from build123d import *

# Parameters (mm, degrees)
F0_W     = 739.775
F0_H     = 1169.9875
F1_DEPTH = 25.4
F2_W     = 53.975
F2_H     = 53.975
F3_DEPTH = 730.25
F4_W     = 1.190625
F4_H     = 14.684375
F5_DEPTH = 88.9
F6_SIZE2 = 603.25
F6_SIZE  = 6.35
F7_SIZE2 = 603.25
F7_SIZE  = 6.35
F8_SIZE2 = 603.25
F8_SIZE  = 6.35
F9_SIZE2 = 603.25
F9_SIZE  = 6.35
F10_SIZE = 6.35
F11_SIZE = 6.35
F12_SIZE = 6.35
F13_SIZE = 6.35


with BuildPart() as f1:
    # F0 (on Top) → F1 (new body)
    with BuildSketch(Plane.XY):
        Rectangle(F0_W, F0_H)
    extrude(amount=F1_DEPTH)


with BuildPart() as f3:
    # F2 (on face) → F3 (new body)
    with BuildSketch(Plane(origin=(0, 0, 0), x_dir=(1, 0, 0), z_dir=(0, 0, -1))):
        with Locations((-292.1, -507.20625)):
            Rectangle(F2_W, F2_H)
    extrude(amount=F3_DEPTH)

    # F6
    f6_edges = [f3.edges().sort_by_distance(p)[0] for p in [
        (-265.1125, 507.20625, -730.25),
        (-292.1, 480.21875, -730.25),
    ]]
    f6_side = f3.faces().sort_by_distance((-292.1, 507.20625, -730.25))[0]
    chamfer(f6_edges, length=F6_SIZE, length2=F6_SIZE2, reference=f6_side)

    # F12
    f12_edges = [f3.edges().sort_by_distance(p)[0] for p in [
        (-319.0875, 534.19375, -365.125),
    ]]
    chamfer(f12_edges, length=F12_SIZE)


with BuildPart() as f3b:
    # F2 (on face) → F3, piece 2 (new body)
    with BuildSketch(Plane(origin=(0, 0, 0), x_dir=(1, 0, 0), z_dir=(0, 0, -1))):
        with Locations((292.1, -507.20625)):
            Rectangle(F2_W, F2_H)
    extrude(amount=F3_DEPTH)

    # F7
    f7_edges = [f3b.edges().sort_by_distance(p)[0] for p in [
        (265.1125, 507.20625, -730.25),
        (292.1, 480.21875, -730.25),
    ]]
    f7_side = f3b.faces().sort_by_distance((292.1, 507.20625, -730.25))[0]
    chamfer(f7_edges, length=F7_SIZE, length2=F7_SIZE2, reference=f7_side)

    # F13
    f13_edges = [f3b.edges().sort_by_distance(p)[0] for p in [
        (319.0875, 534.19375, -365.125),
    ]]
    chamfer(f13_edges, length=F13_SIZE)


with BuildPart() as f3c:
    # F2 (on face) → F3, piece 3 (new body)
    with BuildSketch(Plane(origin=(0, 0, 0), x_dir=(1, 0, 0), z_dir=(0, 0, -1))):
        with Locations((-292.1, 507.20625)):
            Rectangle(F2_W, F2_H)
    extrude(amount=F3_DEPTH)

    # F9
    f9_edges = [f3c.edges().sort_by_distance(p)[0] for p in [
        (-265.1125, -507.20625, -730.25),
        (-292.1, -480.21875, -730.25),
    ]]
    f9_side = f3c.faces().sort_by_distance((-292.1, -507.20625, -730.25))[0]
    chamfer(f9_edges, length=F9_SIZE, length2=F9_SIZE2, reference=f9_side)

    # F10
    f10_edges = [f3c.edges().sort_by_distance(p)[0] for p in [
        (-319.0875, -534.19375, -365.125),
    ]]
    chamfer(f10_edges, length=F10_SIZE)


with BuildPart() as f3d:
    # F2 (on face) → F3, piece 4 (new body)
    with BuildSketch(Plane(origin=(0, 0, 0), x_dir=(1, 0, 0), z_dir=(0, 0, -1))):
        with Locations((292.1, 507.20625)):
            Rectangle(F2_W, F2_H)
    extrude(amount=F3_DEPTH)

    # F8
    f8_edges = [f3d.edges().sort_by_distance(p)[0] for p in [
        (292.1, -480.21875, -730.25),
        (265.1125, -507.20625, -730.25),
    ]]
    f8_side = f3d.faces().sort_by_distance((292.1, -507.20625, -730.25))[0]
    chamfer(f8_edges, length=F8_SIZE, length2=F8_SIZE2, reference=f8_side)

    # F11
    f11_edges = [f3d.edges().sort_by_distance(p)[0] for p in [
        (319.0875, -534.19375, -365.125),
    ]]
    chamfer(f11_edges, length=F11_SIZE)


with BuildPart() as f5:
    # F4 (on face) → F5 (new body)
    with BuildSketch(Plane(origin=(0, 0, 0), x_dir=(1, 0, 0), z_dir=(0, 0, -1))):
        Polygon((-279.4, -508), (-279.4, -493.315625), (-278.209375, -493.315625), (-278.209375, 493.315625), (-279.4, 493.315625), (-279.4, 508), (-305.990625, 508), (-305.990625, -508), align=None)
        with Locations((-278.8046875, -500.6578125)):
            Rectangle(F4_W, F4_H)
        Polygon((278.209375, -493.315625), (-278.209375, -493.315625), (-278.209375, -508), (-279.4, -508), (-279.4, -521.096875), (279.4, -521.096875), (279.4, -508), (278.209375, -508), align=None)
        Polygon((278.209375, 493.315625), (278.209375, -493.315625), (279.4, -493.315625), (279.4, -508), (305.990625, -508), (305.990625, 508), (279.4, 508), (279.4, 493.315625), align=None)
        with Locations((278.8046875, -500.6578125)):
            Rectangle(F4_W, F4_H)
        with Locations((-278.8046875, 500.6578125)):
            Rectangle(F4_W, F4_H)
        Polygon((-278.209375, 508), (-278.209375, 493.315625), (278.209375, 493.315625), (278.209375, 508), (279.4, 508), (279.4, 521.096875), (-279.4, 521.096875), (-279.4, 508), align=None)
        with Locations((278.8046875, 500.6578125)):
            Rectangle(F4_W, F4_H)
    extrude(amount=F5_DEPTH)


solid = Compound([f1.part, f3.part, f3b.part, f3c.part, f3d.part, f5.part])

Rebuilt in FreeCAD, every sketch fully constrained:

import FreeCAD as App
import Part
import Sketcher
from FreeCAD import Vector
Q = App.Units.Quantity


def edges_at(feature, points):
    """Names of the edges that pass closest to the given points."""
    edges = feature.Shape.Edges
    near = lambda p: min(range(len(edges)), key=lambda i: edges[i].distToShape(Part.Vertex(*p))[0])
    return sorted({f"Edge{near(p) + 1}" for p in points})

doc = App.newDocument("Part")
body = doc.addObject("PartDesign::Body", "Body")

# Sketch on XY plane
sketch1 = doc.addObject("Sketcher::SketchObject", "Sketch")
body.addObject(sketch1)
sketch1.AttachmentSupport = (doc.XY_Plane, [""])
sketch1.MapMode = "FlatFace"
sketch1.addGeometry(Part.LineSegment(Vector(-370, 585, 0), Vector(-370, -585, 0)), False)
sketch1.addGeometry(Part.LineSegment(Vector(-370, -585, 0), Vector(370, -585, 0)), False)
sketch1.addGeometry(Part.LineSegment(Vector(370, -585, 0), Vector(370, 585, 0)), False)
sketch1.addGeometry(Part.LineSegment(Vector(370, 585, 0), Vector(-370, 585, 0)), False)
sketch1.addConstraint(Sketcher.Constraint("Coincident", 0, 2, 1, 1))
sketch1.addConstraint(Sketcher.Constraint("Coincident", 1, 2, 2, 1))
sketch1.addConstraint(Sketcher.Constraint("Coincident", 2, 2, 3, 1))
sketch1.addConstraint(Sketcher.Constraint("Coincident", 3, 2, 0, 1))
sketch1.addConstraint(Sketcher.Constraint("Vertical", 0))
sketch1.addConstraint(Sketcher.Constraint("Horizontal", 1))
sketch1.addConstraint(Sketcher.Constraint("Vertical", 2))
sketch1.addConstraint(Sketcher.Constraint("Horizontal", 3))
sketch1.addConstraint(Sketcher.Constraint("Symmetric", 0, 2, 2, 2, -1, 1))
sketch1.addConstraint(Sketcher.Constraint("DistanceX", 1, 1, 1, 2, Q("29.125 in")))
sketch1.addConstraint(Sketcher.Constraint("DistanceY", 0, 2, 0, 1, Q("46.0625 in")))
pad1 = doc.addObject("PartDesign::Pad", "Pad")
body.addObject(pad1)
pad1.Profile = sketch1
pad1.Length = Q("1 in")
body2 = doc.addObject("PartDesign::Body", "Body001")

# Sketch on XY plane
sketch2 = doc.addObject("Sketcher::SketchObject", "Sketch001")
body2.addObject(sketch2)
sketch2.AttachmentSupport = (doc.getObject("XY_Plane001"), [""])
sketch2.MapMode = "FlatFace"
sketch2.addGeometry(Part.LineSegment(Vector(-319, 480, 0), Vector(-319, 534, 0)), False)
sketch2.addGeometry(Part.LineSegment(Vector(-319, 534, 0), Vector(-265, 534, 0)), False)
sketch2.addGeometry(Part.LineSegment(Vector(-265, 534, 0), Vector(-265, 480, 0)), False)
sketch2.addGeometry(Part.LineSegment(Vector(-265, 480, 0), Vector(-319, 480, 0)), False)
sketch2.addConstraint(Sketcher.Constraint("Coincident", 0, 2, 1, 1))
sketch2.addConstraint(Sketcher.Constraint("Coincident", 1, 2, 2, 1))
sketch2.addConstraint(Sketcher.Constraint("Coincident", 2, 2, 3, 1))
sketch2.addConstraint(Sketcher.Constraint("Coincident", 3, 2, 0, 1))
sketch2.addConstraint(Sketcher.Constraint("Vertical", 0))
sketch2.addConstraint(Sketcher.Constraint("Horizontal", 1))
sketch2.addConstraint(Sketcher.Constraint("Vertical", 2))
sketch2.addConstraint(Sketcher.Constraint("Horizontal", 3))
sketch2.addConstraint(Sketcher.Constraint("Equal", 3, 0))
sketch2.addConstraint(Sketcher.Constraint("DistanceX", 1, 1, 1, 2, Q("2.125 in")))
sketch2.addConstraint(Sketcher.Constraint("DistanceX", 0, 2, -1, 1, Q("12.5625 in")))
sketch2.addConstraint(Sketcher.Constraint("DistanceY", -1, 1, 0, 2, Q("21.03125 in")))
pad2 = doc.addObject("PartDesign::Pad", "Pad001")
body2.addObject(pad2)
pad2.Profile = sketch2
pad2.Length = Q("28.75 in")
pad2.Reversed = True
doc.recompute()

chamfer = doc.addObject("PartDesign::Chamfer", "Chamfer")
body2.addObject(chamfer)
chamfer.Base = (pad2, edges_at(pad2, [(-265.113, 507.206, -730.25), (-292.1, 480.219, -730.25)]))
chamfer.ChamferType = "Two distances"
chamfer.Size = Q("0.25 in")
chamfer.Size2 = Q("23.75 in")
chamfer.FlipDirection = True
doc.recompute()

chamfer2 = doc.addObject("PartDesign::Chamfer", "Chamfer001")
body2.addObject(chamfer2)
chamfer2.Base = (chamfer, edges_at(chamfer, [(-319.087, 534.194, -365.125)]))
chamfer2.Size = Q("0.25 in")
body3 = doc.addObject("PartDesign::Body", "Body002")

# Sketch on XY plane
sketch3 = doc.addObject("Sketcher::SketchObject", "Sketch002")
body3.addObject(sketch3)
sketch3.AttachmentSupport = (doc.getObject("XY_Plane002"), [""])
sketch3.MapMode = "FlatFace"
sketch3.addGeometry(Part.LineSegment(Vector(265, 480, 0), Vector(265, 534, 0)), False)
sketch3.addGeometry(Part.LineSegment(Vector(265, 534, 0), Vector(319, 534, 0)), False)
sketch3.addGeometry(Part.LineSegment(Vector(319, 534, 0), Vector(319, 480, 0)), False)
sketch3.addGeometry(Part.LineSegment(Vector(319, 480, 0), Vector(265, 480, 0)), False)
sketch3.addConstraint(Sketcher.Constraint("Coincident", 0, 2, 1, 1))
sketch3.addConstraint(Sketcher.Constraint("Coincident", 1, 2, 2, 1))
sketch3.addConstraint(Sketcher.Constraint("Coincident", 2, 2, 3, 1))
sketch3.addConstraint(Sketcher.Constraint("Coincident", 3, 2, 0, 1))
sketch3.addConstraint(Sketcher.Constraint("Vertical", 0))
sketch3.addConstraint(Sketcher.Constraint("Horizontal", 1))
sketch3.addConstraint(Sketcher.Constraint("Vertical", 2))
sketch3.addConstraint(Sketcher.Constraint("Horizontal", 3))
sketch3.addConstraint(Sketcher.Constraint("Equal", 3, 0))
sketch3.addConstraint(Sketcher.Constraint("DistanceX", 1, 1, 1, 2, Q("2.125 in")))
sketch3.addConstraint(Sketcher.Constraint("DistanceX", -1, 1, 0, 2, Q("10.4375 in")))
sketch3.addConstraint(Sketcher.Constraint("DistanceY", -1, 1, 0, 2, Q("21.03125 in")))
pad3 = doc.addObject("PartDesign::Pad", "Pad002")
body3.addObject(pad3)
pad3.Profile = sketch3
pad3.Length = Q("28.75 in")
pad3.Reversed = True
doc.recompute()

chamfer3 = doc.addObject("PartDesign::Chamfer", "Chamfer002")
body3.addObject(chamfer3)
chamfer3.Base = (pad3, edges_at(pad3, [(265.113, 507.206, -730.25), (292.1, 480.219, -730.25)]))
chamfer3.ChamferType = "Two distances"
chamfer3.Size = Q("0.25 in")
chamfer3.Size2 = Q("23.75 in")
chamfer3.FlipDirection = True
doc.recompute()

chamfer4 = doc.addObject("PartDesign::Chamfer", "Chamfer003")
body3.addObject(chamfer4)
chamfer4.Base = (chamfer3, edges_at(chamfer3, [(319.087, 534.194, -365.125)]))
chamfer4.Size = Q("0.25 in")
body4 = doc.addObject("PartDesign::Body", "Body003")

# Sketch on XY plane
sketch4 = doc.addObject("Sketcher::SketchObject", "Sketch003")
body4.addObject(sketch4)
sketch4.AttachmentSupport = (doc.getObject("XY_Plane003"), [""])
sketch4.MapMode = "FlatFace"
sketch4.addGeometry(Part.LineSegment(Vector(-319, -534, 0), Vector(-319, -480, 0)), False)
sketch4.addGeometry(Part.LineSegment(Vector(-319, -480, 0), Vector(-265, -480, 0)), False)
sketch4.addGeometry(Part.LineSegment(Vector(-265, -480, 0), Vector(-265, -534, 0)), False)
sketch4.addGeometry(Part.LineSegment(Vector(-265, -534, 0), Vector(-319, -534, 0)), False)
sketch4.addConstraint(Sketcher.Constraint("Coincident", 0, 2, 1, 1))
sketch4.addConstraint(Sketcher.Constraint("Coincident", 1, 2, 2, 1))
sketch4.addConstraint(Sketcher.Constraint("Coincident", 2, 2, 3, 1))
sketch4.addConstraint(Sketcher.Constraint("Coincident", 3, 2, 0, 1))
sketch4.addConstraint(Sketcher.Constraint("Vertical", 0))
sketch4.addConstraint(Sketcher.Constraint("Horizontal", 1))
sketch4.addConstraint(Sketcher.Constraint("Vertical", 2))
sketch4.addConstraint(Sketcher.Constraint("Horizontal", 3))
sketch4.addConstraint(Sketcher.Constraint("Equal", 3, 0))
sketch4.addConstraint(Sketcher.Constraint("DistanceX", 1, 1, 1, 2, Q("2.125 in")))
sketch4.addConstraint(Sketcher.Constraint("DistanceX", 0, 2, -1, 1, Q("12.5625 in")))
sketch4.addConstraint(Sketcher.Constraint("DistanceY", 0, 2, -1, 1, Q("18.90625 in")))
pad4 = doc.addObject("PartDesign::Pad", "Pad003")
body4.addObject(pad4)
pad4.Profile = sketch4
pad4.Length = Q("28.75 in")
pad4.Reversed = True
doc.recompute()

chamfer5 = doc.addObject("PartDesign::Chamfer", "Chamfer004")
body4.addObject(chamfer5)
chamfer5.Base = (pad4, edges_at(pad4, [(-265.113, -507.206, -730.25), (-292.1, -480.219, -730.25)]))
chamfer5.ChamferType = "Two distances"
chamfer5.Size = Q("0.25 in")
chamfer5.Size2 = Q("23.75 in")
chamfer5.FlipDirection = True
doc.recompute()

chamfer6 = doc.addObject("PartDesign::Chamfer", "Chamfer005")
body4.addObject(chamfer6)
chamfer6.Base = (chamfer5, edges_at(chamfer5, [(-319.087, -534.194, -365.125)]))
chamfer6.Size = Q("0.25 in")
body5 = doc.addObject("PartDesign::Body", "Body004")

# Sketch on XY plane
sketch5 = doc.addObject("Sketcher::SketchObject", "Sketch004")
body5.addObject(sketch5)
sketch5.AttachmentSupport = (doc.getObject("XY_Plane004"), [""])
sketch5.MapMode = "FlatFace"
sketch5.addGeometry(Part.LineSegment(Vector(265, -534, 0), Vector(265, -480, 0)), False)
sketch5.addGeometry(Part.LineSegment(Vector(265, -480, 0), Vector(319, -480, 0)), False)
sketch5.addGeometry(Part.LineSegment(Vector(319, -480, 0), Vector(319, -534, 0)), False)
sketch5.addGeometry(Part.LineSegment(Vector(319, -534, 0), Vector(265, -534, 0)), False)
sketch5.addConstraint(Sketcher.Constraint("Coincident", 0, 2, 1, 1))
sketch5.addConstraint(Sketcher.Constraint("Coincident", 1, 2, 2, 1))
sketch5.addConstraint(Sketcher.Constraint("Coincident", 2, 2, 3, 1))
sketch5.addConstraint(Sketcher.Constraint("Coincident", 3, 2, 0, 1))
sketch5.addConstraint(Sketcher.Constraint("Vertical", 0))
sketch5.addConstraint(Sketcher.Constraint("Horizontal", 1))
sketch5.addConstraint(Sketcher.Constraint("Vertical", 2))
sketch5.addConstraint(Sketcher.Constraint("Horizontal", 3))
sketch5.addConstraint(Sketcher.Constraint("Equal", 3, 0))
sketch5.addConstraint(Sketcher.Constraint("DistanceX", 1, 1, 1, 2, Q("2.125 in")))
sketch5.addConstraint(Sketcher.Constraint("DistanceX", -1, 1, 0, 2, Q("10.4375 in")))
sketch5.addConstraint(Sketcher.Constraint("DistanceY", 0, 2, -1, 1, Q("18.90625 in")))
pad5 = doc.addObject("PartDesign::Pad", "Pad004")
body5.addObject(pad5)
pad5.Profile = sketch5
pad5.Length = Q("28.75 in")
pad5.Reversed = True
doc.recompute()

chamfer7 = doc.addObject("PartDesign::Chamfer", "Chamfer006")
body5.addObject(chamfer7)
chamfer7.Base = (pad5, edges_at(pad5, [(292.1, -480.219, -730.25), (265.113, -507.206, -730.25)]))
chamfer7.ChamferType = "Two distances"
chamfer7.Size = Q("0.25 in")
chamfer7.Size2 = Q("23.75 in")
chamfer7.FlipDirection = True
doc.recompute()

chamfer8 = doc.addObject("PartDesign::Chamfer", "Chamfer007")
body5.addObject(chamfer8)
chamfer8.Base = (chamfer7, edges_at(chamfer7, [(319.087, -534.194, -365.125)]))
chamfer8.Size = Q("0.25 in")
body6 = doc.addObject("PartDesign::Body", "Body005")

# Sketch on XY plane
sketch6 = doc.addObject("Sketcher::SketchObject", "Sketch005")
body6.addObject(sketch6)
sketch6.AttachmentSupport = (doc.getObject("XY_Plane005"), [""])
sketch6.MapMode = "FlatFace"
sketch6.addGeometry(Part.LineSegment(Vector(306, -508, 0), Vector(279, -508, 0)), False)
sketch6.addGeometry(Part.LineSegment(Vector(279, -508, 0), Vector(279, -521, 0)), False)
sketch6.addGeometry(Part.LineSegment(Vector(279, -521, 0), Vector(-279, -521, 0)), False)
sketch6.addGeometry(Part.LineSegment(Vector(-279, -521, 0), Vector(-279, -508, 0)), False)
sketch6.addGeometry(Part.LineSegment(Vector(-279, -508, 0), Vector(-306, -508, 0)), False)
sketch6.addGeometry(Part.LineSegment(Vector(-306, -508, 0), Vector(-306, 508, 0)), False)
sketch6.addGeometry(Part.LineSegment(Vector(-306, 508, 0), Vector(-279, 508, 0)), False)
sketch6.addGeometry(Part.LineSegment(Vector(-279, 508, 0), Vector(-279, 521, 0)), False)
sketch6.addGeometry(Part.LineSegment(Vector(-279, 521, 0), Vector(279, 521, 0)), False)
sketch6.addGeometry(Part.LineSegment(Vector(279, 521, 0), Vector(279, 508, 0)), False)
sketch6.addGeometry(Part.LineSegment(Vector(279, 508, 0), Vector(306, 508, 0)), False)
sketch6.addGeometry(Part.LineSegment(Vector(306, 508, 0), Vector(306, -508, 0)), False)
sketch6.addGeometry(Part.LineSegment(Vector(-278, -493, 0), Vector(278, -493, 0)), False)
sketch6.addGeometry(Part.LineSegment(Vector(278, -493, 0), Vector(278, 493, 0)), False)
sketch6.addGeometry(Part.LineSegment(Vector(278, 493, 0), Vector(-278, 493, 0)), False)
sketch6.addGeometry(Part.LineSegment(Vector(-278, 493, 0), Vector(-278, -493, 0)), False)
sketch6.addConstraint(Sketcher.Constraint("Coincident", 0, 2, 1, 1))
sketch6.addConstraint(Sketcher.Constraint("Coincident", 1, 2, 2, 1))
sketch6.addConstraint(Sketcher.Constraint("Coincident", 2, 2, 3, 1))
sketch6.addConstraint(Sketcher.Constraint("Coincident", 3, 2, 4, 1))
sketch6.addConstraint(Sketcher.Constraint("Coincident", 4, 2, 5, 1))
sketch6.addConstraint(Sketcher.Constraint("Coincident", 5, 2, 6, 1))
sketch6.addConstraint(Sketcher.Constraint("Coincident", 6, 2, 7, 1))
sketch6.addConstraint(Sketcher.Constraint("Coincident", 7, 2, 8, 1))
sketch6.addConstraint(Sketcher.Constraint("Coincident", 8, 2, 9, 1))
sketch6.addConstraint(Sketcher.Constraint("Coincident", 9, 2, 10, 1))
sketch6.addConstraint(Sketcher.Constraint("Coincident", 10, 2, 11, 1))
sketch6.addConstraint(Sketcher.Constraint("Coincident", 11, 2, 0, 1))
sketch6.addConstraint(Sketcher.Constraint("Coincident", 12, 2, 13, 1))
sketch6.addConstraint(Sketcher.Constraint("Coincident", 13, 2, 14, 1))
sketch6.addConstraint(Sketcher.Constraint("Coincident", 14, 2, 15, 1))
sketch6.addConstraint(Sketcher.Constraint("Coincident", 15, 2, 12, 1))
sketch6.addConstraint(Sketcher.Constraint("Horizontal", 0))
sketch6.addConstraint(Sketcher.Constraint("Vertical", 1))
sketch6.addConstraint(Sketcher.Constraint("Horizontal", 2))
sketch6.addConstraint(Sketcher.Constraint("Vertical", 3))
sketch6.addConstraint(Sketcher.Constraint("Horizontal", 4))
sketch6.addConstraint(Sketcher.Constraint("Vertical", 5))
sketch6.addConstraint(Sketcher.Constraint("Horizontal", 6))
sketch6.addConstraint(Sketcher.Constraint("Vertical", 7))
sketch6.addConstraint(Sketcher.Constraint("Horizontal", 8))
sketch6.addConstraint(Sketcher.Constraint("Vertical", 9))
sketch6.addConstraint(Sketcher.Constraint("Horizontal", 10))
sketch6.addConstraint(Sketcher.Constraint("Vertical", 11))
sketch6.addConstraint(Sketcher.Constraint("Horizontal", 12))
sketch6.addConstraint(Sketcher.Constraint("Vertical", 13))
sketch6.addConstraint(Sketcher.Constraint("Horizontal", 14))
sketch6.addConstraint(Sketcher.Constraint("Vertical", 15))
sketch6.addConstraint(Sketcher.Constraint("Symmetric", 0, 2, 6, 2, -1, 1))
sketch6.addConstraint(Sketcher.Constraint("Symmetric", 2, 2, 8, 2, -1, 1))
sketch6.addConstraint(Sketcher.Constraint("Symmetric", 4, 2, 10, 2, -1, 1))
sketch6.addConstraint(Sketcher.Constraint("Symmetric", 12, 2, 14, 2, -1, 1))
sketch6.addConstraint(Sketcher.Constraint("Symmetric", 0, 2, 3, 2, -2))
sketch6.addConstraint(Sketcher.Constraint("DistanceX", 2, 2, 2, 1, Q("22 in")))
sketch6.addConstraint(Sketcher.Constraint("DistanceY", 5, 1, 5, 2, Q("40 in")))
sketch6.addConstraint(Sketcher.Constraint("DistanceX", 0, 2, 0, 1, Q("1.046875 in")))
sketch6.addConstraint(Sketcher.Constraint("DistanceX", 12, 1, 12, 2, Q("21.90625 in")))
sketch6.addConstraint(Sketcher.Constraint("DistanceY", 1, 2, 1, 1, Q("0.515625 in")))
sketch6.addConstraint(Sketcher.Constraint("DistanceY", 13, 1, 13, 2, Q("38.84375 in")))
pad6 = doc.addObject("PartDesign::Pad", "Pad005")
body6.addObject(pad6)
pad6.Profile = sketch6
pad6.Length = Q("3.5 in")
pad6.Reversed = True

doc.recompute()
